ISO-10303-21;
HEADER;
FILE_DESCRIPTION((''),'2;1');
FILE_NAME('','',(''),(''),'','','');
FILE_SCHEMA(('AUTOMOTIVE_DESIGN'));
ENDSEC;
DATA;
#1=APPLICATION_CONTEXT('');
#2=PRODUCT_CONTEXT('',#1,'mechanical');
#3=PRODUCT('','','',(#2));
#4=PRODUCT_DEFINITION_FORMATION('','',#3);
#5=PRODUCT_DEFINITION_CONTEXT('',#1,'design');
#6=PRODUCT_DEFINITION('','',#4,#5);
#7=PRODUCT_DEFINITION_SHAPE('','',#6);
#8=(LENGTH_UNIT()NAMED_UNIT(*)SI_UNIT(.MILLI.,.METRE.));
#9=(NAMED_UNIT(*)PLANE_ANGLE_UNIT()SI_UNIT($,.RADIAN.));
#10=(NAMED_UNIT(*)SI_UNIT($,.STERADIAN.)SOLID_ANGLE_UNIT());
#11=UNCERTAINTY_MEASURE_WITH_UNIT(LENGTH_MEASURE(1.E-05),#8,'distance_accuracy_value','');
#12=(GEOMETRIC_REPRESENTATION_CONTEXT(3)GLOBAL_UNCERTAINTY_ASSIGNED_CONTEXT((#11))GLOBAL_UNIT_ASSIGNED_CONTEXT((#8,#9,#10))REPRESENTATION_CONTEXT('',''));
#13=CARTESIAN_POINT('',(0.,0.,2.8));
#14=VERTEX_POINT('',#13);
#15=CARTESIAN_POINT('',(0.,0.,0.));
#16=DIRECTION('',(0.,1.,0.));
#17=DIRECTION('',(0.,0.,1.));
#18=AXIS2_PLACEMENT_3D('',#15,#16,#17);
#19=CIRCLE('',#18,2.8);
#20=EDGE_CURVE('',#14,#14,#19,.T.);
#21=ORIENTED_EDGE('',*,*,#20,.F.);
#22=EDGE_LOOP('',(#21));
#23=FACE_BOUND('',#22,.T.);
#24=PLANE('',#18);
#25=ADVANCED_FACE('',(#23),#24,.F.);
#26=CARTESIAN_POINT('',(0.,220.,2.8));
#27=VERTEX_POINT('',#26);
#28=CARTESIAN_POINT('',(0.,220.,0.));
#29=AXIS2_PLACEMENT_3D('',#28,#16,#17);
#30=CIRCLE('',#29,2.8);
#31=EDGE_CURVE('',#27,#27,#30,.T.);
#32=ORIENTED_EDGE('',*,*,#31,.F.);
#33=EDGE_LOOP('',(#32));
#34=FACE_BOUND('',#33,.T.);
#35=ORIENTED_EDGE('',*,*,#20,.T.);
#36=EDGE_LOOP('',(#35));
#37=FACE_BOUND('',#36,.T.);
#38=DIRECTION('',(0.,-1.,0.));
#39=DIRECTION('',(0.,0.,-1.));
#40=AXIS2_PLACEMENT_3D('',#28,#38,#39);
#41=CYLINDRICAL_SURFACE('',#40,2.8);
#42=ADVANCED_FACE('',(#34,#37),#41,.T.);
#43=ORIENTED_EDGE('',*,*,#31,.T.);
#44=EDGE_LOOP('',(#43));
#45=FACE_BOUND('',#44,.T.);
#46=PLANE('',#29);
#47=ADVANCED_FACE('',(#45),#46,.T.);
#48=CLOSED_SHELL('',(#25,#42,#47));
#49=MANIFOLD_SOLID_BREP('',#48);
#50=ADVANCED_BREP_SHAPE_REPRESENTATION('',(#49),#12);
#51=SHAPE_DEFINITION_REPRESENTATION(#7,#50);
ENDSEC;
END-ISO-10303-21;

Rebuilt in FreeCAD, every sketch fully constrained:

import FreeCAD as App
import Part
import Sketcher

V = App.Vector
Q = App.Units.Quantity

doc = App.newDocument("Part")
body = doc.addObject("PartDesign::Body", "Body")

# Sketch on XZ plane
sketch1 = body.newObject("Sketcher::SketchObject", "Sketch")
sketch1.AttachmentSupport = (doc.getObject("XZ_Plane"), [""])
sketch1.MapMode = "FlatFace"
sketch1.addGeometry(Part.Circle(V(0, 0, 0), V(0, 0, 1), 2.8), False)
sketch1.addConstraint([
    Sketcher.Constraint("Coincident", 0, 3, -1, 1),
    Sketcher.Constraint("Diameter", 0, Q("5.6 mm")),
])
pad1 = body.newObject("PartDesign::Pad", "Pad")
pad1.Profile = sketch1
pad1.Length = 220
pad1.Reversed = True

doc.recompute()
